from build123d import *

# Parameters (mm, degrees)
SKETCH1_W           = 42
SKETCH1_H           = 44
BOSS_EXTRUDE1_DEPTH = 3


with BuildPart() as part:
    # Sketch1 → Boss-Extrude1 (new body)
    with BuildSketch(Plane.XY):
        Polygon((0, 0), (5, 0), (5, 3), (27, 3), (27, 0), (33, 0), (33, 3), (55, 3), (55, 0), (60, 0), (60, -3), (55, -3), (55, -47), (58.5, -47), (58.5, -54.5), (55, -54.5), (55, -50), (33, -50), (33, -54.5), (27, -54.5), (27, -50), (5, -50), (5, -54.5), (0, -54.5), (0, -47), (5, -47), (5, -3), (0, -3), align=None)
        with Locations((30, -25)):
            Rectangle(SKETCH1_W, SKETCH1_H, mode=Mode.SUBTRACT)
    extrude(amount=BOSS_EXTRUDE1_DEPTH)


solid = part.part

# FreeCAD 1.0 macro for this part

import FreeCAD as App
import Part
import Sketcher


def add_polygon(sketch, points):
    """Adds a closed chain of lines whose ends are joined by coincident constraints."""
    first, n = sketch.GeometryCount, len(points)
    for a, b in zip(points, points[1:] + points[:1]):
        sketch.addGeometry(Part.LineSegment(App.Vector(*a, 0), App.Vector(*b, 0)), False)
    for i in range(n):
        sketch.addConstraint(Sketcher.Constraint("Coincident", first + i, 2, first + (i + 1) % n, 1))

doc = App.newDocument("Part")
body = doc.addObject("PartDesign::Body", "Body")

# Sketch on XY plane
sketch1 = body.newObject("Sketcher::SketchObject", "Sketch")
sketch1.AttachmentSupport = (doc.getObject("XY_Plane"), [""])
sketch1.MapMode = "FlatFace"
add_polygon(sketch1, [(5, 0), (0, 0), (0, -3), (5, -3), (5, -47), (0, -47), (0, -54.5), (5, -54.5), (5, -50), (27, -50), (27, -54.5), (33, -54.5), (33, -50), (55, -50), (55, -54.5), (58.5, -54.5), (58.5, -47), (55, -47), (55, -3), (60, -3), (60, 0), (55, 0), (55, 3), (33, 3), (33, 0), (27, 0), (27, 3), (5, 3)])  # lines 0-27
add_polygon(sketch1, [(9, -47), (9, -3), (51, -3), (51, -47)])  # lines 28-31
sketch1.addConstraint([
    Sketcher.Constraint("Horizontal", 0),
    Sketcher.Constraint("Vertical", 1),
    Sketcher.Constraint("Horizontal", 2),
    Sketcher.Constraint("Vertical", 3),
    Sketcher.Constraint("Horizontal", 4),
    Sketcher.Constraint("Vertical", 5),
    Sketcher.Constraint("Horizontal", 6),
    Sketcher.Constraint("Vertical", 7),
    Sketcher.Constraint("Horizontal", 8),
    Sketcher.Constraint("Vertical", 9),
    Sketcher.Constraint("Horizontal", 10),
    Sketcher.Constraint("Vertical", 11),
    Sketcher.Constraint("Horizontal", 12),
    Sketcher.Constraint("Vertical", 13),
    Sketcher.Constraint("Horizontal", 14),
    Sketcher.Constraint("Vertical", 15),
    Sketcher.Constraint("Horizontal", 16),
    Sketcher.Constraint("Vertical", 17),
    Sketcher.Constraint("Horizontal", 18),
    Sketcher.Constraint("Vertical", 19),
    Sketcher.Constraint("Horizontal", 20),
    Sketcher.Constraint("Vertical", 21),
    Sketcher.Constraint("Horizontal", 22),
    Sketcher.Constraint("Vertical", 23),
    Sketcher.Constraint("Horizontal", 24),
    Sketcher.Constraint("Vertical", 25),
    Sketcher.Constraint("Horizontal", 26),
    Sketcher.Constraint("Vertical", 27),
    Sketcher.Constraint("Vertical", 28),
    Sketcher.Constraint("Horizontal", 29),
    Sketcher.Constraint("Vertical", 30),
    Sketcher.Constraint("Horizontal", 31),
    Sketcher.Constraint("Coincident", 0, 2, -1, 1),
    Sketcher.Constraint("Symmetric", 17, 2, 21, 2, -1),
    Sketcher.Constraint("Symmetric", 2, 2, 26, 2, -1),
    Sketcher.Constraint("PointOnObject", 4, 2, -2),
    Sketcher.Constraint("PointOnObject", 19, 2, -1),
    Sketcher.Constraint("PointOnObject", 23, 2, -1),
    Sketcher.Constraint("Horizontal", 6, 2, 9, 2),
    Sketcher.Constraint("Horizontal", 8, 2, 11, 2),
    Sketcher.Constraint("Horizontal", 10, 2, 13, 2),
    Sketcher.Constraint("Horizontal", 4, 2, 15, 2),
    Sketcher.Constraint("Horizontal", 2, 2, 17, 2),
    Sketcher.Constraint("Horizontal", 18, 2, 28, 2),
    Sketcher.Constraint("Horizontal", 16, 2, 30, 2),
    Sketcher.Constraint("Vertical", 3, 2, 6, 2),
    Sketcher.Constraint("Vertical", 13, 2, 16, 2),
    Sketcher.Constraint("Vertical", 11, 2, 22, 2),
    Sketcher.Constraint("Vertical", 9, 2, 24, 2),
    Sketcher.Constraint("Equal", 8, 12),
    Sketcher.Constraint("Equal", 6, 18),
    Sketcher.Constraint("DistanceX", 0, 2, 0, 1, 5.0),
    Sketcher.Constraint("DistanceX", 8, 1, 8, 2, 22.0),
    Sketcher.Constraint("DistanceX", 10, 1, 10, 2, 6.0),
    Sketcher.Constraint("DistanceX", 29, 1, 29, 2, 42.0),
    Sketcher.Constraint("DistanceY", 1, 2, 1, 1, 3.0),
    Sketcher.Constraint("DistanceY", 3, 2, 3, 1, 44.0),
    Sketcher.Constraint("DistanceX", 14, 1, 14, 2, 3.5),
    Sketcher.Constraint("DistanceY", 5, 2, 5, 1, 7.5),
    Sketcher.Constraint("DistanceY", 7, 1, 7, 2, 4.5),
    Sketcher.Constraint("DistanceX", -1, 1, 28, 2, 9.0),
])
pad1 = body.newObject("PartDesign::Pad", "Pad")
pad1.Profile = sketch1
pad1.Length = 3

doc.recompute()
